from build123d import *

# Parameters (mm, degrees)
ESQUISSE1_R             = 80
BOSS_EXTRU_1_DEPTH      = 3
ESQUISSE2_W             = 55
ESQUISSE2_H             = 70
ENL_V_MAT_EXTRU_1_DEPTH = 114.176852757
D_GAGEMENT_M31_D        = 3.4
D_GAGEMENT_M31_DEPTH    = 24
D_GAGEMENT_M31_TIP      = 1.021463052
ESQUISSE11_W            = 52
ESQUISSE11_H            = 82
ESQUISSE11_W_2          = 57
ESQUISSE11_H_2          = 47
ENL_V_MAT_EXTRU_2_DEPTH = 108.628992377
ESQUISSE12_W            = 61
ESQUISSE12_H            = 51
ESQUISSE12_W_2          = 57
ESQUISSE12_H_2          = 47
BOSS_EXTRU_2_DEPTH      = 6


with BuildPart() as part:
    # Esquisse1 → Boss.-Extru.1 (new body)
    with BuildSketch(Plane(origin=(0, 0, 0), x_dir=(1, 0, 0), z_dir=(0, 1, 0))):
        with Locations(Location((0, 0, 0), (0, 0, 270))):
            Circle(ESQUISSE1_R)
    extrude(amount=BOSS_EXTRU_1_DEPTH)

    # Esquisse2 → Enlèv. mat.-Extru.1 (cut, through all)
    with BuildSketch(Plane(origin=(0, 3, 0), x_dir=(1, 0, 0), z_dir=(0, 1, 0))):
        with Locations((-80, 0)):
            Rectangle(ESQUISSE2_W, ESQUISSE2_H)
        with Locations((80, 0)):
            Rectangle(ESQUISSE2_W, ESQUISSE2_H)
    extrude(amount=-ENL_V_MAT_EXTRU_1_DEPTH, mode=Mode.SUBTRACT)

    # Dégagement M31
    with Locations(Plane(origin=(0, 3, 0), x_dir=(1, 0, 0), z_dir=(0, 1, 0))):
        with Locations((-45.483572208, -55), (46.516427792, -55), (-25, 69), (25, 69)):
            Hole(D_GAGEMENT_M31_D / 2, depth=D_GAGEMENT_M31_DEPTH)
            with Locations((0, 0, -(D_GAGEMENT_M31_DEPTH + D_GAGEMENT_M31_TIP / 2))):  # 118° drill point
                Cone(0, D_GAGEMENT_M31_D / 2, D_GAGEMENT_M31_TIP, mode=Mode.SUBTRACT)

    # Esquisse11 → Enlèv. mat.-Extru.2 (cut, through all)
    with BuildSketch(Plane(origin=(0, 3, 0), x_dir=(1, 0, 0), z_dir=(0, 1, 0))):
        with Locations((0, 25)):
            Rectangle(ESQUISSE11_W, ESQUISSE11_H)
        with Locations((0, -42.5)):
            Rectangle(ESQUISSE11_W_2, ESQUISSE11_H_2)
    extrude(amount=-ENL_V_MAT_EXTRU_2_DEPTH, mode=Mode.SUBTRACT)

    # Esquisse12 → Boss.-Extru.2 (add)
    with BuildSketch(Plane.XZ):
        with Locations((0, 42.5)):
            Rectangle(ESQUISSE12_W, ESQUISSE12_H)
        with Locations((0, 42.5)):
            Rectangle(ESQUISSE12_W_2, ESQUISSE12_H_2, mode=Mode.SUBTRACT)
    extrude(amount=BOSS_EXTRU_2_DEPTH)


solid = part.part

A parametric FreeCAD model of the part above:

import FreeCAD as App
import Part
import Sketcher
Q = App.Units.Quantity


def add_polygon(sketch, points):
    """Adds a closed chain of lines whose ends are joined by coincident constraints."""
    first, n = sketch.GeometryCount, len(points)
    for a, b in zip(points, points[1:] + points[:1]):
        sketch.addGeometry(Part.LineSegment(App.Vector(*a, 0), App.Vector(*b, 0)), False)
    for i in range(n):
        sketch.addConstraint(Sketcher.Constraint("Coincident", first + i, 2, first + (i + 1) % n, 1))

doc = App.newDocument("Part")
body = doc.addObject("PartDesign::Body", "Body")

sketch1 = doc.addObject("Sketcher::SketchObject", "Sketch")
body.addObject(sketch1)
sketch1.AttachmentSupport = (doc.XZ_Plane, [""])
sketch1.MapMode = "FlatFace"
sketch1.addGeometry(Part.Circle(App.Vector(0, 0, 0), App.Vector(0, 0, 1), 80), False)
sketch1.addConstraint([
    Sketcher.Constraint("Coincident", 0, 3, -1, 1),
    Sketcher.Constraint("Diameter", 0, Q("160 mm")),
])
pad1 = doc.addObject("PartDesign::Pad", "Pad")
body.addObject(pad1)
pad1.Profile = sketch1
pad1.Length = 3
pad1.Reversed = True

sketch2 = doc.addObject("Sketcher::SketchObject", "Sketch001")
body.addObject(sketch2)
sketch2.AttachmentSupport = (doc.XZ_Plane, [""])
sketch2.MapMode = "FlatFace"
sketch2.AttachmentOffset = App.Placement(App.Vector(0, 0, -3), App.Rotation())
add_polygon(sketch2, [(-107.5, -35), (-107.5, 35), (-52.5, 35), (-52.5, -35)])
add_polygon(sketch2, [(52.5, -35), (52.5, 35), (107.5, 35), (107.5, -35)])
sketch2.addConstraint([
    Sketcher.Constraint("Vertical", 0),
    Sketcher.Constraint("Horizontal", 1),
    Sketcher.Constraint("Vertical", 2),
    Sketcher.Constraint("Horizontal", 3),
    Sketcher.Constraint("Vertical", 4),
    Sketcher.Constraint("Horizontal", 5),
    Sketcher.Constraint("Vertical", 6),
    Sketcher.Constraint("Horizontal", 7),
    Sketcher.Constraint("Symmetric", 2, 2, 4, 2, -1, 1),
    Sketcher.Constraint("Symmetric", 0, 2, 6, 2, -1, 1),
    Sketcher.Constraint("Horizontal", 1, 2, 4, 2),
    Sketcher.Constraint("DistanceX", 1, 1, 1, 2, Q("55 mm")),
    Sketcher.Constraint("DistanceY", 0, 1, 0, 2, Q("70 mm")),
    Sketcher.Constraint("DistanceX", 1, 2, 4, 2, Q("105 mm")),
])
pocket1 = doc.addObject("PartDesign::Pocket", "Pocket")
body.addObject(pocket1)
pocket1.Profile = sketch2
pocket1.Type = "ThroughAll"
pocket1.Reversed = True

sketch3 = doc.addObject("Sketcher::SketchObject", "Sketch002")
body.addObject(sketch3)
sketch3.AttachmentSupport = (doc.XZ_Plane, [""])
sketch3.MapMode = "FlatFace"
sketch3.AttachmentOffset = App.Placement(App.Vector(0, 0, -3), App.Rotation())
sketch3.addGeometry([
    Part.Circle(App.Vector(-45.483572, 55, 0), App.Vector(0, 0, 1), 1.7),
    Part.Circle(App.Vector(46.516428, 55, 0), App.Vector(0, 0, 1), 1.7),
    Part.Circle(App.Vector(-25, -69, 0), App.Vector(0, 0, 1), 1.7),
    Part.Circle(App.Vector(25, -69, 0), App.Vector(0, 0, 1), 1.7),
], False)
sketch3.addConstraint([
    Sketcher.Constraint("Equal", 0, 1),
    Sketcher.Constraint("Equal", 1, 2),
    Sketcher.Constraint("Equal", 2, 3),
    Sketcher.Constraint("Symmetric", 2, 3, 3, 3, -2),
    Sketcher.Constraint("Horizontal", 0, 3, 1, 3),
    Sketcher.Constraint("Diameter", 0, Q("3.4 mm")),
    Sketcher.Constraint("DistanceY", -1, 1, 0, 3, Q("55 mm")),
    Sketcher.Constraint("DistanceX", 2, 3, -1, 1, Q("25 mm")),
    Sketcher.Constraint("DistanceY", 2, 3, -1, 1, Q("69 mm")),
    Sketcher.Constraint("DistanceX", 0, 3, 1, 3, Q("92 mm")),
    Sketcher.Constraint("DistanceX", 0, 3, -1, 1, Q("45.483572 mm")),
])
doc.recompute()
hole = doc.addObject("PartDesign::Hole", "Hole")
body.addObject(hole)
hole.Profile = sketch3
hole.ThreadType = "None"
hole.Diameter = 3.4
hole.DepthType = "Dimension"
hole.Depth = 24
hole.DrillPoint = "Angled"
hole.DrillPointAngle = 118
hole.Reversed = True

sketch4 = doc.addObject("Sketcher::SketchObject", "Sketch003")
body.addObject(sketch4)
sketch4.AttachmentSupport = (doc.XZ_Plane, [""])
sketch4.MapMode = "FlatFace"
sketch4.AttachmentOffset = App.Placement(App.Vector(0, 0, -3), App.Rotation())
add_polygon(sketch4, [(-26, -66), (-26, 16), (26, 16), (26, -66)])
add_polygon(sketch4, [(-28.5, 19), (-28.5, 66), (28.5, 66), (28.5, 19)])
sketch4.addConstraint([
    Sketcher.Constraint("Vertical", 0),
    Sketcher.Constraint("Horizontal", 1),
    Sketcher.Constraint("Vertical", 2),
    Sketcher.Constraint("Horizontal", 3),
    Sketcher.Constraint("Vertical", 4),
    Sketcher.Constraint("Horizontal", 5),
    Sketcher.Constraint("Vertical", 6),
    Sketcher.Constraint("Horizontal", 7),
    Sketcher.Constraint("DistanceX", 1, 1, 1, 2, Q("52 mm")),
    Sketcher.Constraint("DistanceX", 5, 1, 5, 2, Q("57 mm")),
    Sketcher.Constraint("DistanceY", 0, 1, 0, 2, Q("82 mm")),
    Sketcher.Constraint("DistanceY", 4, 1, 4, 2, Q("47 mm")),
    Sketcher.Constraint("DistanceX", 0, 2, -1, 1, Q("26 mm")),
    Sketcher.Constraint("DistanceY", -1, 1, 0, 2, Q("16 mm")),
    Sketcher.Constraint("DistanceY", -1, 1, 4, 2, Q("66 mm")),
    Sketcher.Constraint("DistanceX", 4, 2, -1, 1, Q("28.5 mm")),
])
pocket2 = doc.addObject("PartDesign::Pocket", "Pocket001")
body.addObject(pocket2)
pocket2.Profile = sketch4
pocket2.Type = "ThroughAll"
pocket2.Reversed = True

sketch5 = doc.addObject("Sketcher::SketchObject", "Sketch004")
body.addObject(sketch5)
sketch5.AttachmentSupport = (doc.XZ_Plane, [""])
sketch5.MapMode = "FlatFace"
add_polygon(sketch5, [(-30.5, 68), (-30.5, 17), (30.5, 17), (30.5, 68)])
add_polygon(sketch5, [(28.5, 19), (-28.5, 19), (-28.5, 66), (28.5, 66)])
sketch5.addConstraint([
    Sketcher.Constraint("Vertical", 0),
    Sketcher.Constraint("Horizontal", 1),
    Sketcher.Constraint("Vertical", 2),
    Sketcher.Constraint("Horizontal", 3),
    Sketcher.Constraint("Horizontal", 4),
    Sketcher.Constraint("Vertical", 5),
    Sketcher.Constraint("Horizontal", 6),
    Sketcher.Constraint("Vertical", 7),
    Sketcher.Constraint("DistanceX", 1, 1, 1, 2, Q("61 mm")),
    Sketcher.Constraint("DistanceX", 4, 2, 4, 1, Q("57 mm")),
    Sketcher.Constraint("DistanceY", 0, 2, 0, 1, Q("51 mm")),
    Sketcher.Constraint("DistanceY", 5, 1, 5, 2, Q("47 mm")),
    Sketcher.Constraint("DistanceY", -1, 1, 0, 2, Q("17 mm")),
    Sketcher.Constraint("DistanceY", -1, 1, 4, 2, Q("19 mm")),
    Sketcher.Constraint("DistanceX", 0, 2, 4, 2, Q("2 mm")),
    Sketcher.Constraint("DistanceX", 0, 2, -1, 1, Q("30.5 mm")),
])
pad2 = doc.addObject("PartDesign::Pad", "Pad001")
body.addObject(pad2)
pad2.Profile = sketch5
pad2.Length = 6

doc.recompute()
